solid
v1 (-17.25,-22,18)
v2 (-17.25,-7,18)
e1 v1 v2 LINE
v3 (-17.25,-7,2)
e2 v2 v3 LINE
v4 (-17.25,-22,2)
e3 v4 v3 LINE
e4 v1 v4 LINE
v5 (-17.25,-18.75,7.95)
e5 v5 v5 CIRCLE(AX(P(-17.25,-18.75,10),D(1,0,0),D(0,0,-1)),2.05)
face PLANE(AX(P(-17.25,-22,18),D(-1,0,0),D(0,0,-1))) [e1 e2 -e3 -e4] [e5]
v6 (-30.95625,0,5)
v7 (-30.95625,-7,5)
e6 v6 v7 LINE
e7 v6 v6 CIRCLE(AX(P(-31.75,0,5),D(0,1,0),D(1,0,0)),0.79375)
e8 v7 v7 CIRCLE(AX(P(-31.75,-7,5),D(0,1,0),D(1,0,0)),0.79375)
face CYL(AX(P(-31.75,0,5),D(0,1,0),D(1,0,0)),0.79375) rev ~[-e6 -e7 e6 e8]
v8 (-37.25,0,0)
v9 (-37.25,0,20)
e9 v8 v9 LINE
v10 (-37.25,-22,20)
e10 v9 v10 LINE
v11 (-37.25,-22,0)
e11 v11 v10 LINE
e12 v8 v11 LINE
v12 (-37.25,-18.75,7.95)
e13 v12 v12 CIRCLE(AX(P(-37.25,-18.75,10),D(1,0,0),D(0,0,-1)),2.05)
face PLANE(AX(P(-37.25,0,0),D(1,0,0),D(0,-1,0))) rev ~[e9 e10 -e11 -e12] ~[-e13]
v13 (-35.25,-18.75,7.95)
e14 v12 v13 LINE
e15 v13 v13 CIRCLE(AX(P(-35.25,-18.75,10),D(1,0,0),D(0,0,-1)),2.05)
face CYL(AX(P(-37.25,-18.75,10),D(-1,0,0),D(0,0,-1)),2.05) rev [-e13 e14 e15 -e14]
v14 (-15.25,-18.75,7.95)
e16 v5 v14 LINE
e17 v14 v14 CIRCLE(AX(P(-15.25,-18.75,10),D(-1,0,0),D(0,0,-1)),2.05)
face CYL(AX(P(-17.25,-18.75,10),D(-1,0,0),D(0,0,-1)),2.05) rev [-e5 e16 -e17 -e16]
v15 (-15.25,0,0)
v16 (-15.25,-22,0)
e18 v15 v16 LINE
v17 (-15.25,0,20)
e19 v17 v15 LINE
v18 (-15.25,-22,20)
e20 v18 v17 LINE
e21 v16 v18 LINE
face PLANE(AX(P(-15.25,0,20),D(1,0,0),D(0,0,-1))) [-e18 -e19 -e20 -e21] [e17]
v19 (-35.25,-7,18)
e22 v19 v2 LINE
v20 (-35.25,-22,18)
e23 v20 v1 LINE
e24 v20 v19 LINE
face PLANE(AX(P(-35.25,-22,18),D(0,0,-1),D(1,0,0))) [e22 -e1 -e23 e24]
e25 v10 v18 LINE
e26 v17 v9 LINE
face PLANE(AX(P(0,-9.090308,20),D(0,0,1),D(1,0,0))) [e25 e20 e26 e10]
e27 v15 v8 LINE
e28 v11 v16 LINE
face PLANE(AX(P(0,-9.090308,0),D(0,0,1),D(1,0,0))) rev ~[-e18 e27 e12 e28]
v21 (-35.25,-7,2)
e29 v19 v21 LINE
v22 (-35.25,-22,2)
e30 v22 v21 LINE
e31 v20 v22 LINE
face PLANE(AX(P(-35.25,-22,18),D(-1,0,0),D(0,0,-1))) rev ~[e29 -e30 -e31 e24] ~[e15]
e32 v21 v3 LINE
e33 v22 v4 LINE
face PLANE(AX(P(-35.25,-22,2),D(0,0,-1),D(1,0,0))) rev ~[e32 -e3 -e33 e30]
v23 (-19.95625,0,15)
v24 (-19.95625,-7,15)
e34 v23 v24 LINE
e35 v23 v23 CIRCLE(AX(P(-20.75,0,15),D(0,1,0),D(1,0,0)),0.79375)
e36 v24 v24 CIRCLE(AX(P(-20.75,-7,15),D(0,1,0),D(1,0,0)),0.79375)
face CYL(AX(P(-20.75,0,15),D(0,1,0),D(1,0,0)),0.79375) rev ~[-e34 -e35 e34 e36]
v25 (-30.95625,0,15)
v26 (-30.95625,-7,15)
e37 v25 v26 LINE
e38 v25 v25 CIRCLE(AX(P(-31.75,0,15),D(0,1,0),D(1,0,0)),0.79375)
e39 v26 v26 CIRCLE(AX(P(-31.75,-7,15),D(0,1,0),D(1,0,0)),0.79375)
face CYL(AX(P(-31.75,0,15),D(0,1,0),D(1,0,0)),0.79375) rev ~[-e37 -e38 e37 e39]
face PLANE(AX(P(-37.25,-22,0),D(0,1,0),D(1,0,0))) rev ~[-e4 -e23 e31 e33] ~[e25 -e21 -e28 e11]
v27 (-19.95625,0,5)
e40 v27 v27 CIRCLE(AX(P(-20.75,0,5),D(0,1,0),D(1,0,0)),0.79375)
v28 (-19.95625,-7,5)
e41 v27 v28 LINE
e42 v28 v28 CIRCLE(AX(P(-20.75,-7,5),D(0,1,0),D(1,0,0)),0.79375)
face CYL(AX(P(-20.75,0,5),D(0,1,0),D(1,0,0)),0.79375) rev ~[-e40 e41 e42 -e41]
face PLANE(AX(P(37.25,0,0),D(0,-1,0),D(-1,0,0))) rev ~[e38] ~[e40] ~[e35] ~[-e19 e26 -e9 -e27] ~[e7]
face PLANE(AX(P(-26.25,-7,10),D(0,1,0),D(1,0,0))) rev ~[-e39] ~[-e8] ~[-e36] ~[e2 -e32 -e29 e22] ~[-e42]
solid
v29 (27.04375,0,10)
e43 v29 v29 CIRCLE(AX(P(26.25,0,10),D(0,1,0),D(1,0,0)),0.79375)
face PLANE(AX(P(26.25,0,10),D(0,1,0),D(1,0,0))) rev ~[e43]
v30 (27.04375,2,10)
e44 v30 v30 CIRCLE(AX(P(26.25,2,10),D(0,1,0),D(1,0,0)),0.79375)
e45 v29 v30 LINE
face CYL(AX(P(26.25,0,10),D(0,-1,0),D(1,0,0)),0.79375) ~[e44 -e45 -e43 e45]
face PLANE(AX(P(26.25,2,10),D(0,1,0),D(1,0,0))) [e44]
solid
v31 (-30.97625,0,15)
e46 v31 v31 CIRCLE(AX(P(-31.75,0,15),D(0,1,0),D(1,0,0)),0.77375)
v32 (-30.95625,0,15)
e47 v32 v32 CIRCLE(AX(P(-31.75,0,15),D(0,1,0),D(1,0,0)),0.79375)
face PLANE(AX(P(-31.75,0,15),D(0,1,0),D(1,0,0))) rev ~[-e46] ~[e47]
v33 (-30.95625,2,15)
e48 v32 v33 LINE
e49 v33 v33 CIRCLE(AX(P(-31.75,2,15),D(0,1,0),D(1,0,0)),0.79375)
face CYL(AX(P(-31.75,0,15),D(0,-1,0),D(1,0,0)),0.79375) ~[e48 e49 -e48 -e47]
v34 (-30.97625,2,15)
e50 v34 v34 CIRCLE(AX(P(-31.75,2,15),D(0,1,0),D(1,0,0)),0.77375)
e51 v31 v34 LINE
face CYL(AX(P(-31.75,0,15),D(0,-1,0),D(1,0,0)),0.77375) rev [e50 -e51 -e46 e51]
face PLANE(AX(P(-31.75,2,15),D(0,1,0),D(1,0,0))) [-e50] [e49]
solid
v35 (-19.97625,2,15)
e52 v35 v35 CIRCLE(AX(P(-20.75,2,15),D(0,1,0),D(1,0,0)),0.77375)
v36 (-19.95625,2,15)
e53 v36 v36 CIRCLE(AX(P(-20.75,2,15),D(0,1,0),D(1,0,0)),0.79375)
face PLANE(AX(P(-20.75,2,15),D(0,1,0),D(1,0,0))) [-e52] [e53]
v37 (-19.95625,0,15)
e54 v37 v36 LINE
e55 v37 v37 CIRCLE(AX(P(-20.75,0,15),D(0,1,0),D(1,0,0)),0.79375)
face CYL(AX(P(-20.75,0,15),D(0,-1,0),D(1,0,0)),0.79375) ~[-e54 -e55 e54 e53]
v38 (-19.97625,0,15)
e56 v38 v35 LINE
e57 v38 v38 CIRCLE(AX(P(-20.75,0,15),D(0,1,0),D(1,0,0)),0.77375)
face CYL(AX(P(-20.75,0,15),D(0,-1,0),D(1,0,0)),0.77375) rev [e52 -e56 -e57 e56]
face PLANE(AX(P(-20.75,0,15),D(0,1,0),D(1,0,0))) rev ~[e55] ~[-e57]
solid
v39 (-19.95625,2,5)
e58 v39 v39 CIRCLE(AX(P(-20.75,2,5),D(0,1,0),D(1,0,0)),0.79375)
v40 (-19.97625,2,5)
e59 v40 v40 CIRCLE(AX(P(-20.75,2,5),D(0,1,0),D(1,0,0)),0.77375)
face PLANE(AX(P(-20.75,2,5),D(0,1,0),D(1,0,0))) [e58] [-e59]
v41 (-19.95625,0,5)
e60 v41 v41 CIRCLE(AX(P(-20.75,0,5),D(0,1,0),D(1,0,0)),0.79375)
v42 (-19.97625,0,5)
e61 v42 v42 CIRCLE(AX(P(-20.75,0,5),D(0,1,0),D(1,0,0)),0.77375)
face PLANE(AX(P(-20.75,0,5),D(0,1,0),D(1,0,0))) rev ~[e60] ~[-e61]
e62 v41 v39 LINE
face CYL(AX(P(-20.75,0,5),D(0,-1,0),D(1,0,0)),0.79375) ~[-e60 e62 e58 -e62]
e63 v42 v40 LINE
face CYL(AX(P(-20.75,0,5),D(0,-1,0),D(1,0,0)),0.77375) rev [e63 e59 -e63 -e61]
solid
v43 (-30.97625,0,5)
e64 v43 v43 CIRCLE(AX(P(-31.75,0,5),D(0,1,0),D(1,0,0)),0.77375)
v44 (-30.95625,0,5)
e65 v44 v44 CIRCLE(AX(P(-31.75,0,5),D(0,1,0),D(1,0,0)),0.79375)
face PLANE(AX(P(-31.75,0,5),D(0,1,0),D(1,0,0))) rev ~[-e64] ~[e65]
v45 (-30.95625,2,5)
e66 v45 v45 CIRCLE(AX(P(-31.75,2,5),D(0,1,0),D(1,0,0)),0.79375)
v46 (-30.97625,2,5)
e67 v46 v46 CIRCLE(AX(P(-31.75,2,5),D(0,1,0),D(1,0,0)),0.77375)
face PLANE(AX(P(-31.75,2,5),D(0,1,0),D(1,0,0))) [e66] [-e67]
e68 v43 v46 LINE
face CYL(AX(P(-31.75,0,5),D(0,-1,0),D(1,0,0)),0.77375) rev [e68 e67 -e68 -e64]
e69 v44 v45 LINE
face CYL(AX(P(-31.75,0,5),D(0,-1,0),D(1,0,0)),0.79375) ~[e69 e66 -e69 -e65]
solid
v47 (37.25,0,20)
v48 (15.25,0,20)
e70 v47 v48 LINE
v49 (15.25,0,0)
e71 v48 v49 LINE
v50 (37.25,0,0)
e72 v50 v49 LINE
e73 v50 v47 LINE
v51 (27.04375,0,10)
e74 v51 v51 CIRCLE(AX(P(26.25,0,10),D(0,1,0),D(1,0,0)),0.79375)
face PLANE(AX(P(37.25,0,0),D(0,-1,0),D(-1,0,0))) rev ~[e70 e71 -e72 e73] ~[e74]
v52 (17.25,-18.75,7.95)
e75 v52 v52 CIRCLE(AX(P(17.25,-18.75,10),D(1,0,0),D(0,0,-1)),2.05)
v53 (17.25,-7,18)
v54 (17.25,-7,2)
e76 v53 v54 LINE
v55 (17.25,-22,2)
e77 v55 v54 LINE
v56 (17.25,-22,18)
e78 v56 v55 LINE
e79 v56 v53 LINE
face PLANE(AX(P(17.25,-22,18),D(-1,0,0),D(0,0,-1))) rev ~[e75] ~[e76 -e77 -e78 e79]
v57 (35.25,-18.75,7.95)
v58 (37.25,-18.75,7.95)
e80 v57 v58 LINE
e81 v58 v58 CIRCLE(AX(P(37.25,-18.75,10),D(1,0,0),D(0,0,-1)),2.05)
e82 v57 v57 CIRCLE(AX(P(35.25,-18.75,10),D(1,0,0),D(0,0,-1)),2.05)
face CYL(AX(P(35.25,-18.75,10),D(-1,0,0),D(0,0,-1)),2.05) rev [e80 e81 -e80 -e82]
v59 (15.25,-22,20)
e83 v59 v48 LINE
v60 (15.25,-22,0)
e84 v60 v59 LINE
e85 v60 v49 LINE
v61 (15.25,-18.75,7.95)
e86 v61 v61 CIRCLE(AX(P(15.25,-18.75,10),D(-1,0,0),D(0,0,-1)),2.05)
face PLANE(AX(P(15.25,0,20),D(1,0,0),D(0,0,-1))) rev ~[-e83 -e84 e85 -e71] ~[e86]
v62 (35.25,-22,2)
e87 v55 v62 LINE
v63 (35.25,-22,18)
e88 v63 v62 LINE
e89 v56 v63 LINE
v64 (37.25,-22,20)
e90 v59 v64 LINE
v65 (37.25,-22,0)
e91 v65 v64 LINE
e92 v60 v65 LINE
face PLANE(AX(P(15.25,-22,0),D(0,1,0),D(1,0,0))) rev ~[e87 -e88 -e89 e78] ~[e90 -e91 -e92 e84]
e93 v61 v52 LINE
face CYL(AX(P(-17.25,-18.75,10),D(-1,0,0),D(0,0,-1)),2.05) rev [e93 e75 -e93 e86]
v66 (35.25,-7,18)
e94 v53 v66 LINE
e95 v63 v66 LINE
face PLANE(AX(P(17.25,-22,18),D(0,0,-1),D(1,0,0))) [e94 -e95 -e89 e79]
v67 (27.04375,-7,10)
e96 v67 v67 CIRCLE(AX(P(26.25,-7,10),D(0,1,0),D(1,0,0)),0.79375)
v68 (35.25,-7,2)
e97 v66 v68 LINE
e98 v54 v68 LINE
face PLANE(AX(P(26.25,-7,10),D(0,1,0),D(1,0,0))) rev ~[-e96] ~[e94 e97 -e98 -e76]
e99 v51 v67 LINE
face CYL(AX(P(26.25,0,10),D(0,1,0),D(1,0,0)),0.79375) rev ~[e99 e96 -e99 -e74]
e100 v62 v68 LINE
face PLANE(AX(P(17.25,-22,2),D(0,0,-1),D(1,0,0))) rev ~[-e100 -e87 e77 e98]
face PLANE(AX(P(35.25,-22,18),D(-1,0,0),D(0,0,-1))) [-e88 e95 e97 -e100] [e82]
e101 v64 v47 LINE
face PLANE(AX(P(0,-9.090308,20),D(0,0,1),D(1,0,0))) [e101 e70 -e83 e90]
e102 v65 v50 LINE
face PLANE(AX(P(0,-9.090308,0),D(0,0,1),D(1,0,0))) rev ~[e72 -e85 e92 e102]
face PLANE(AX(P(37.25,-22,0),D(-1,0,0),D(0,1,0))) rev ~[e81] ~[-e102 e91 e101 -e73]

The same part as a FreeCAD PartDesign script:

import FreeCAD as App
import Part
import Sketcher
from FreeCAD import Vector


def add_polygon(sketch, points):
    """Adds a closed chain of lines whose ends are joined by coincident constraints."""
    first, n = sketch.GeometryCount, len(points)
    for a, b in zip(points, points[1:] + points[:1]):
        sketch.addGeometry(Part.LineSegment(App.Vector(*a, 0), App.Vector(*b, 0)), False)
    for i in range(n):
        sketch.addConstraint(Sketcher.Constraint("Coincident", first + i, 2, first + (i + 1) % n, 1))

doc = App.newDocument("Part")
body = doc.addObject("PartDesign::Body", "Body")
body.AllowCompound = True

# Sketch on XY plane
sketch1 = body.newObject("Sketcher::SketchObject", "Sketch")
sketch1.AttachmentSupport = (doc.getObject("XY_Plane"), [""])
sketch1.MapMode = "FlatFace"
add_polygon(sketch1, [(37.25, 0), (-37.25, 0), (-37.25, -22), (-15.25, -22), (-15.25, -5), (15.25, -5), (15.25, -22), (37.25, -22)])  # lines 0-7
sketch1.addConstraint(Sketcher.Constraint("Horizontal", 0))
sketch1.addConstraint(Sketcher.Constraint("Vertical", 1))
sketch1.addConstraint(Sketcher.Constraint("Horizontal", 2))
sketch1.addConstraint(Sketcher.Constraint("Vertical", 3))
sketch1.addConstraint(Sketcher.Constraint("Horizontal", 4))
sketch1.addConstraint(Sketcher.Constraint("Vertical", 5))
sketch1.addConstraint(Sketcher.Constraint("Horizontal", 6))
sketch1.addConstraint(Sketcher.Constraint("Vertical", 7))
sketch1.addConstraint(Sketcher.Constraint("Symmetric", 0, 2, 7, 2, -1, 1))
sketch1.addConstraint(Sketcher.Constraint("Symmetric", 2, 2, 5, 2, -2))
sketch1.addConstraint(Sketcher.Constraint("Equal", 6, 1))
sketch1.addConstraint(Sketcher.Constraint("DistanceX", 2, 1, 2, 2, 22.0))
sketch1.addConstraint(Sketcher.Constraint("DistanceY", 3, 1, 3, 2, 17.0))
sketch1.addConstraint(Sketcher.Constraint("DistanceX", 0, 2, 0, 1, 74.5))
pad1 = body.newObject("PartDesign::Pad", "Pad")
pad1.Profile = sketch1
pad1.Length = 20

# Sketch on XZ plane
sketch2 = body.newObject("Sketcher::SketchObject", "Sketch001")
sketch2.AttachmentSupport = (doc.getObject("XZ_Plane"), [""])
sketch2.MapMode = "FlatFace"
sketch2.AttachmentOffset = App.Placement(Vector(0, 0, 22), App.Rotation())
add_polygon(sketch2, [(-35.25, 2), (-35.25, 18), (-17.25, 18), (-17.25, 2)])  # lines 0-3
add_polygon(sketch2, [(17.25, 2), (17.25, 18), (35.25, 18), (35.25, 2)])  # lines 4-7
sketch2.addConstraint(Sketcher.Constraint("Vertical", 0))
sketch2.addConstraint(Sketcher.Constraint("Horizontal", 1))
sketch2.addConstraint(Sketcher.Constraint("Vertical", 2))
sketch2.addConstraint(Sketcher.Constraint("Horizontal", 3))
sketch2.addConstraint(Sketcher.Constraint("Vertical", 4))
sketch2.addConstraint(Sketcher.Constraint("Horizontal", 5))
sketch2.addConstraint(Sketcher.Constraint("Vertical", 6))
sketch2.addConstraint(Sketcher.Constraint("Horizontal", 7))
sketch2.addConstraint(Sketcher.Constraint("Symmetric", 1, 2, 4, 2, -2))
sketch2.addConstraint(Sketcher.Constraint("Symmetric", 3, 2, 6, 2, -2))
sketch2.addConstraint(Sketcher.Constraint("DistanceX", 1, 1, 1, 2, 18.0))
sketch2.addConstraint(Sketcher.Constraint("DistanceY", 0, 1, 0, 2, 16.0))
sketch2.addConstraint(Sketcher.Constraint("DistanceY", -1, 1, 0, 2, 18.0))
sketch2.addConstraint(Sketcher.Constraint("DistanceX", 1, 2, 4, 2, 34.5))
pocket1 = body.newObject("PartDesign::Pocket", "Pocket")
pocket1.Profile = sketch2
pocket1.Length = 15

# Sketch on XZ plane
sketch3 = body.newObject("Sketcher::SketchObject", "Sketch002")
sketch3.AttachmentSupport = (doc.getObject("XZ_Plane"), [""])
sketch3.MapMode = "FlatFace"
sketch3.addGeometry(Part.Circle(Vector(-31.75, 5, 0), Vector(0, 0, 1), 0.79375), False)
sketch3.addGeometry(Part.Circle(Vector(-20.75, 5, 0), Vector(0, 0, 1), 0.79375), False)
sketch3.addGeometry(Part.Circle(Vector(-20.75, 15, 0), Vector(0, 0, 1), 0.79375), False)
sketch3.addGeometry(Part.Circle(Vector(-31.75, 15, 0), Vector(0, 0, 1), 0.79375), False)
sketch3.addGeometry(Part.Circle(Vector(26.25, 10, 0), Vector(0, 0, 1), 0.79375), False)
sketch3.addConstraint(Sketcher.Constraint("Equal", 0, 1))
sketch3.addConstraint(Sketcher.Constraint("Equal", 1, 2))
sketch3.addConstraint(Sketcher.Constraint("Equal", 2, 3))
sketch3.addConstraint(Sketcher.Constraint("Equal", 3, 4))
sketch3.addConstraint(Sketcher.Constraint("Horizontal", 0, 3, 1, 3))
sketch3.addConstraint(Sketcher.Constraint("Horizontal", 2, 3, 3, 3))
sketch3.addConstraint(Sketcher.Constraint("Vertical", 1, 3, 2, 3))
sketch3.addConstraint(Sketcher.Constraint("Vertical", 0, 3, 3, 3))
sketch3.addConstraint(Sketcher.Constraint("DistanceY", -1, 1, 0, 3, 5.0))
sketch3.addConstraint(Sketcher.Constraint("DistanceY", -1, 1, 2, 3, 15.0))
sketch3.addConstraint(Sketcher.Constraint("DistanceY", -1, 1, 4, 3, 10.0))
sketch3.addConstraint(Sketcher.Constraint("DistanceX", 0, 3, 1, 3, 11.0))
sketch3.addConstraint(Sketcher.Constraint("DistanceX", 1, 3, 4, 3, 47.0))
sketch3.addConstraint(Sketcher.Constraint("Diameter", 0, 1.5875))
sketch3.addConstraint(Sketcher.Constraint("DistanceX", 0, 3, -1, 1, 31.75))
pocket2 = body.newObject("PartDesign::Pocket", "Pocket001")
pocket2.Profile = sketch3
pocket2.Type = "ThroughAll"
pocket2.Reversed = True

# Sketch on YZ plane
sketch4 = body.newObject("Sketcher::SketchObject", "Sketch003")
sketch4.AttachmentSupport = (doc.getObject("YZ_Plane"), [""])
sketch4.MapMode = "FlatFace"
sketch4.AttachmentOffset = App.Placement(Vector(0, 0, 35.25), App.Rotation())
sketch4.addGeometry(Part.Circle(Vector(-18.75, 10, 0), Vector(0, 0, 1), 2.05), False)
sketch4.addConstraint(Sketcher.Constraint("Diameter", 0, 4.1))
sketch4.addConstraint(Sketcher.Constraint("DistanceY", -1, 1, 0, 3, 10.0))
sketch4.addConstraint(Sketcher.Constraint("DistanceX", 0, 3, -1, 1, 18.75))
pocket3 = body.newObject("PartDesign::Pocket", "Pocket002")
pocket3.Profile = sketch4
pocket3.Length = 2
pocket3.Reversed = True

# Sketch on YZ plane
sketch5 = body.newObject("Sketcher::SketchObject", "Sketch004")
sketch5.AttachmentSupport = (doc.getObject("YZ_Plane"), [""])
sketch5.MapMode = "FlatFace"
sketch5.AttachmentOffset = App.Placement(Vector(0, 0, -37.25), App.Rotation())
sketch5.addGeometry(Part.Circle(Vector(-18.75, 10, 0), Vector(0, 0, 1), 2.05), False)
sketch5.addConstraint(Sketcher.Constraint("Diameter", 0, 4.1))
sketch5.addConstraint(Sketcher.Constraint("DistanceY", -1, 1, 0, 3, 10.0))
sketch5.addConstraint(Sketcher.Constraint("DistanceX", 0, 3, -1, 1, 18.75))
pocket4 = body.newObject("PartDesign::Pocket", "Pocket003")
pocket4.Profile = sketch5
pocket4.Length = 2
pocket4.Reversed = True

# Sketch on YZ plane
sketch6 = body.newObject("Sketcher::SketchObject", "Sketch005")
sketch6.AttachmentSupport = (doc.getObject("YZ_Plane"), [""])
sketch6.MapMode = "FlatFace"
sketch6.AttachmentOffset = App.Placement(Vector(0, 0, -17.25), App.Rotation())
sketch6.addGeometry(Part.Circle(Vector(-18.75, 10, 0), Vector(0, 0, 1), 2.05), False)
sketch6.addConstraint(Sketcher.Constraint("Diameter", 0, 4.1))
sketch6.addConstraint(Sketcher.Constraint("DistanceY", -1, 1, 0, 3, 10.0))
sketch6.addConstraint(Sketcher.Constraint("DistanceX", 0, 3, -1, 1, 18.75))
pocket5 = body.newObject("PartDesign::Pocket", "Pocket004")
pocket5.Profile = sketch6
pocket5.Length = 34.5
pocket5.Reversed = True

# Sketch on XZ plane
sketch7 = body.newObject("Sketcher::SketchObject", "Sketch006")
sketch7.AttachmentSupport = (doc.getObject("XZ_Plane"), [""])
sketch7.MapMode = "FlatFace"
sketch7.addGeometry(Part.Circle(Vector(0, 10, 0), Vector(0, 0, 1), 2.05), False)
sketch7.addConstraint(Sketcher.Constraint("PointOnObject", 0, 3, -2))
sketch7.addConstraint(Sketcher.Constraint("Diameter", 0, 4.1))
sketch7.addConstraint(Sketcher.Constraint("DistanceY", -1, 1, 0, 3, 10.0))
pocket6 = body.newObject("PartDesign::Pocket", "Pocket005")
pocket6.Profile = sketch7
pocket6.Type = "ThroughAll"
pocket6.Reversed = True

# Sketch on XZ plane
sketch8 = body.newObject("Sketcher::SketchObject", "Sketch007")
sketch8.AttachmentSupport = (doc.getObject("XZ_Plane"), [""])
sketch8.MapMode = "FlatFace"
add_polygon(sketch8, [(-15.25, 0), (-15.25, 20), (15.25, 20), (15.25, 0)])  # lines 0-3
sketch8.addConstraint(Sketcher.Constraint("Vertical", 0))
sketch8.addConstraint(Sketcher.Constraint("Horizontal", 1))
sketch8.addConstraint(Sketcher.Constraint("Vertical", 2))
sketch8.addConstraint(Sketcher.Constraint("Horizontal", 3))
sketch8.addConstraint(Sketcher.Constraint("Symmetric", 2, 2, 3, 2, -1, 1))
sketch8.addConstraint(Sketcher.Constraint("DistanceY", 0, 1, 0, 2, 20.0))
sketch8.addConstraint(Sketcher.Constraint("DistanceX", 1, 1, 1, 2, 30.5))
pocket7 = body.newObject("PartDesign::Pocket", "Pocket006")
pocket7.Profile = sketch8
pocket7.Type = "ThroughAll"
pocket7.Reversed = True
body2 = doc.addObject("PartDesign::Body", "Body001")

# Sketch on XZ plane
sketch9 = body2.newObject("Sketcher::SketchObject", "Sketch008")
sketch9.AttachmentSupport = (doc.getObject("XZ_Plane001"), [""])
sketch9.MapMode = "FlatFace"
sketch9.addGeometry(Part.Circle(Vector(-31.75, 5, 0), Vector(0, 0, 1), 0.79375), False)
sketch9.addGeometry(Part.Circle(Vector(-31.75, 5, 0), Vector(0, 0, 1), 0.77375), False)
sketch9.addConstraint(Sketcher.Constraint("Coincident", 1, 3, 0, 3))
sketch9.addConstraint(Sketcher.Constraint("DistanceY", -1, 1, 0, 3, 5.0))
sketch9.addConstraint(Sketcher.Constraint("Diameter", 0, 1.5875))
sketch9.addConstraint(Sketcher.Constraint("Diameter", 1, 1.5475))
sketch9.addConstraint(Sketcher.Constraint("DistanceX", 0, 3, -1, 1, 31.75))
pad2 = body2.newObject("PartDesign::Pad", "Pad001")
pad2.Profile = sketch9
pad2.Length = 2
pad2.Reversed = True
body3 = doc.addObject("PartDesign::Body", "Body002")

# Sketch on XZ plane
sketch10 = body3.newObject("Sketcher::SketchObject", "Sketch009")
sketch10.AttachmentSupport = (doc.getObject("XZ_Plane002"), [""])
sketch10.MapMode = "FlatFace"
sketch10.addGeometry(Part.Circle(Vector(-20.75, 5, 0), Vector(0, 0, 1), 0.79375), False)
sketch10.addGeometry(Part.Circle(Vector(-20.75, 5, 0), Vector(0, 0, 1), 0.77375), False)
sketch10.addConstraint(Sketcher.Constraint("Coincident", 1, 3, 0, 3))
sketch10.addConstraint(Sketcher.Constraint("DistanceY", -1, 1, 0, 3, 5.0))
sketch10.addConstraint(Sketcher.Constraint("Diameter", 0, 1.5875))
sketch10.addConstraint(Sketcher.Constraint("Diameter", 1, 1.5475))
sketch10.addConstraint(Sketcher.Constraint("DistanceX", 0, 3, -1, 1, 20.75))
pad3 = body3.newObject("PartDesign::Pad", "Pad002")
pad3.Profile = sketch10
pad3.Length = 2
pad3.Reversed = True
body4 = doc.addObject("PartDesign::Body", "Body003")

# Sketch on XZ plane
sketch11 = body4.newObject("Sketcher::SketchObject", "Sketch010")
sketch11.AttachmentSupport = (doc.getObject("XZ_Plane003"), [""])
sketch11.MapMode = "FlatFace"
sketch11.addGeometry(Part.Circle(Vector(-20.75, 15, 0), Vector(0, 0, 1), 0.79375), False)
sketch11.addGeometry(Part.Circle(Vector(-20.75, 15, 0), Vector(0, 0, 1), 0.77375), False)
sketch11.addConstraint(Sketcher.Constraint("Coincident", 1, 3, 0, 3))
sketch11.addConstraint(Sketcher.Constraint("DistanceY", -1, 1, 0, 3, 15.0))
sketch11.addConstraint(Sketcher.Constraint("Diameter", 0, 1.5875))
sketch11.addConstraint(Sketcher.Constraint("Diameter", 1, 1.5475))
sketch11.addConstraint(Sketcher.Constraint("DistanceX", 0, 3, -1, 1, 20.75))
pad4 = body4.newObject("PartDesign::Pad", "Pad003")
pad4.Profile = sketch11
pad4.Length = 2
pad4.Reversed = True
body5 = doc.addObject("PartDesign::Body", "Body004")

# Sketch on XZ plane
sketch12 = body5.newObject("Sketcher::SketchObject", "Sketch011")
sketch12.AttachmentSupport = (doc.getObject("XZ_Plane004"), [""])
sketch12.MapMode = "FlatFace"
sketch12.addGeometry(Part.Circle(Vector(-31.75, 15, 0), Vector(0, 0, 1), 0.79375), False)
sketch12.addGeometry(Part.Circle(Vector(-31.75, 15, 0), Vector(0, 0, 1), 0.77375), False)
sketch12.addConstraint(Sketcher.Constraint("Coincident", 1, 3, 0, 3))
sketch12.addConstraint(Sketcher.Constraint("DistanceY", -1, 1, 0, 3, 15.0))
sketch12.addConstraint(Sketcher.Constraint("Diameter", 0, 1.5875))
sketch12.addConstraint(Sketcher.Constraint("Diameter", 1, 1.5475))
sketch12.addConstraint(Sketcher.Constraint("DistanceX", 0, 3, -1, 1, 31.75))
pad5 = body5.newObject("PartDesign::Pad", "Pad004")
pad5.Profile = sketch12
pad5.Length = 2
pad5.Reversed = True
body6 = doc.addObject("PartDesign::Body", "Body005")

# Sketch on XZ plane
sketch13 = body6.newObject("Sketcher::SketchObject", "Sketch012")
sketch13.AttachmentSupport = (doc.getObject("XZ_Plane005"), [""])
sketch13.MapMode = "FlatFace"
sketch13.addGeometry(Part.Circle(Vector(26.25, 10, 0), Vector(0, 0, 1), 0.79375), False)
sketch13.addConstraint(Sketcher.Constraint("DistanceY", -1, 1, 0, 3, 10.0))
sketch13.addConstraint(Sketcher.Constraint("Diameter", 0, 1.5875))
sketch13.addConstraint(Sketcher.Constraint("DistanceX", -1, 1, 0, 3, 26.25))
pad6 = body6.newObject("PartDesign::Pad", "Pad005")
pad6.Profile = sketch13
pad6.Length = 2
pad6.Reversed = True

doc.recompute()
